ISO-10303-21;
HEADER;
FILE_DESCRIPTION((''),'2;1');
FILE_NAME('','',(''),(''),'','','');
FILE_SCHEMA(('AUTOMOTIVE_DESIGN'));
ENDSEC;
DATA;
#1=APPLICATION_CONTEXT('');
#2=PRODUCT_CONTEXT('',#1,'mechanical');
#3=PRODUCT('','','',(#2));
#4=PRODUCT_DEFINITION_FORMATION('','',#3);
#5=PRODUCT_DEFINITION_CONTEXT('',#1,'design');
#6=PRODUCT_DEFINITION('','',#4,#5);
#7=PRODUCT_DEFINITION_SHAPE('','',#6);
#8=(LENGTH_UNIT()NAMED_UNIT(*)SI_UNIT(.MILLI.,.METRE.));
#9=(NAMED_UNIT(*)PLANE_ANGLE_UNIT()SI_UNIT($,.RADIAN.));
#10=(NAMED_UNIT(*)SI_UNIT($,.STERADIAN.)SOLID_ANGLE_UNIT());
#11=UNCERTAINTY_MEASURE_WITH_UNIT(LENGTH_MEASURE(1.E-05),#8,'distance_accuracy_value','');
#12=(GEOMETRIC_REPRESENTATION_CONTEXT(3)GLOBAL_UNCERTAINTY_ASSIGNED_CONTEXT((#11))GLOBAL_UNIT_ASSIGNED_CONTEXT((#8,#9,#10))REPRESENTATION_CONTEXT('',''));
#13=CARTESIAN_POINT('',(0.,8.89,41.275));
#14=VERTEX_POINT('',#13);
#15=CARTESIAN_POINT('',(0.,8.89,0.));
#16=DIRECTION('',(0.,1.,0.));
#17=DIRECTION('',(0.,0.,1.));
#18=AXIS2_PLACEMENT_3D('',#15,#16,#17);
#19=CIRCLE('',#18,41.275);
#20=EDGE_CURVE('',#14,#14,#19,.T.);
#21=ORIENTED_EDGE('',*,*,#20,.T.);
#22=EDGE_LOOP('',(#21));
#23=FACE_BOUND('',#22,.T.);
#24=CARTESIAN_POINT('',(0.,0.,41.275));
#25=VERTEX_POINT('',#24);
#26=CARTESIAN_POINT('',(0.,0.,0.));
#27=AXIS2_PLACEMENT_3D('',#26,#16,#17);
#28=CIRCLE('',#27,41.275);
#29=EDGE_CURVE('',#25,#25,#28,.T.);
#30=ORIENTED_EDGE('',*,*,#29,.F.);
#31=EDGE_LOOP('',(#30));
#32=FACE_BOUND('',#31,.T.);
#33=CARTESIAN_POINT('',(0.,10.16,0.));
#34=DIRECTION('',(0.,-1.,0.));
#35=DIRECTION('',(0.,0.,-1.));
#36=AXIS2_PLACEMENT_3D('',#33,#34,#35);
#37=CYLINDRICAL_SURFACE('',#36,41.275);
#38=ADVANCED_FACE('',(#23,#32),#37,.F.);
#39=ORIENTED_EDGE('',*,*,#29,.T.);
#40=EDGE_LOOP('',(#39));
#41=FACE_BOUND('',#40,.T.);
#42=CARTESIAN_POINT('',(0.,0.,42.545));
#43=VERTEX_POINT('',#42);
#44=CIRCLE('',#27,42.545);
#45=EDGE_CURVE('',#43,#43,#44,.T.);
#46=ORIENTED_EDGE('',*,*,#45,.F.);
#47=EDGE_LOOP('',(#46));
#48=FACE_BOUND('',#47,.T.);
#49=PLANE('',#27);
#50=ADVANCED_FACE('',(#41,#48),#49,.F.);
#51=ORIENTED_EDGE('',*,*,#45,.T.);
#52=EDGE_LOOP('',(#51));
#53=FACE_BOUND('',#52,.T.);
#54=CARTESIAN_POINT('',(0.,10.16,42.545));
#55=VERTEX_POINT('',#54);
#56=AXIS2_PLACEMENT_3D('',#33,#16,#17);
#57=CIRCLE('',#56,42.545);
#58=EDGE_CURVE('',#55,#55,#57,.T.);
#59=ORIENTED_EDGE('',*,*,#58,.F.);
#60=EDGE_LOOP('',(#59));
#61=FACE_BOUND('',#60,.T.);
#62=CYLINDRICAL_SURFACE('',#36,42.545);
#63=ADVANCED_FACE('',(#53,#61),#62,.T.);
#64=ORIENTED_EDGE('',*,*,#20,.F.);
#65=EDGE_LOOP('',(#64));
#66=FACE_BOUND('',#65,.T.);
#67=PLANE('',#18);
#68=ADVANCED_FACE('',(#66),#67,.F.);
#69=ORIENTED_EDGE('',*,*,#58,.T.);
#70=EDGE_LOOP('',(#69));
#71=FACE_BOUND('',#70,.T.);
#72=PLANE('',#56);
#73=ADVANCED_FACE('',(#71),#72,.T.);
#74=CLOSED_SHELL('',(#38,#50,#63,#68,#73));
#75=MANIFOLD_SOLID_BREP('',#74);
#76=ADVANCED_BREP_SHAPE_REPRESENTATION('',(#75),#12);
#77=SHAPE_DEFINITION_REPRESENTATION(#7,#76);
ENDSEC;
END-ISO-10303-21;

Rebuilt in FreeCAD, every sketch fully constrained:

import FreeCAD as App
import Part
import Sketcher
Q = App.Units.Quantity


def faces_at(feature, points):
    """Names of the faces that lie closest to the given points."""
    faces = feature.Shape.Faces
    near = lambda p: min(range(len(faces)), key=lambda i: faces[i].distToShape(Part.Vertex(*p))[0])
    return sorted({f"Face{near(p) + 1}" for p in points})

doc = App.newDocument("Part")
body = doc.addObject("PartDesign::Body", "Body")

sketch1 = body.newObject("Sketcher::SketchObject", "Sketch")
sketch1.AttachmentSupport = (doc.getObject("XZ_Plane"), [""])
sketch1.MapMode = "FlatFace"
sketch1.addGeometry(Part.Circle(App.Vector(0, 0, 0), App.Vector(0, 0, 1), 43), False)
sketch1.addConstraint(Sketcher.Constraint("Coincident", 0, 3, -1, 1))
sketch1.addConstraint(Sketcher.Constraint("Diameter", 0, Q("3.35 in")))
pad1 = body.newObject("PartDesign::Pad", "Pad")
pad1.Profile = sketch1
pad1.Length = Q("0.4 in")
pad1.Reversed = True
doc.recompute()

thickness = body.newObject("PartDesign::Thickness", "Thickness")
thickness.Base = (pad1, faces_at(pad1, [(0, 0, 0)]))
thickness.Value = Q("0.05 in")
thickness.Reversed = True
thickness.Join = "Intersection"

doc.recompute()
